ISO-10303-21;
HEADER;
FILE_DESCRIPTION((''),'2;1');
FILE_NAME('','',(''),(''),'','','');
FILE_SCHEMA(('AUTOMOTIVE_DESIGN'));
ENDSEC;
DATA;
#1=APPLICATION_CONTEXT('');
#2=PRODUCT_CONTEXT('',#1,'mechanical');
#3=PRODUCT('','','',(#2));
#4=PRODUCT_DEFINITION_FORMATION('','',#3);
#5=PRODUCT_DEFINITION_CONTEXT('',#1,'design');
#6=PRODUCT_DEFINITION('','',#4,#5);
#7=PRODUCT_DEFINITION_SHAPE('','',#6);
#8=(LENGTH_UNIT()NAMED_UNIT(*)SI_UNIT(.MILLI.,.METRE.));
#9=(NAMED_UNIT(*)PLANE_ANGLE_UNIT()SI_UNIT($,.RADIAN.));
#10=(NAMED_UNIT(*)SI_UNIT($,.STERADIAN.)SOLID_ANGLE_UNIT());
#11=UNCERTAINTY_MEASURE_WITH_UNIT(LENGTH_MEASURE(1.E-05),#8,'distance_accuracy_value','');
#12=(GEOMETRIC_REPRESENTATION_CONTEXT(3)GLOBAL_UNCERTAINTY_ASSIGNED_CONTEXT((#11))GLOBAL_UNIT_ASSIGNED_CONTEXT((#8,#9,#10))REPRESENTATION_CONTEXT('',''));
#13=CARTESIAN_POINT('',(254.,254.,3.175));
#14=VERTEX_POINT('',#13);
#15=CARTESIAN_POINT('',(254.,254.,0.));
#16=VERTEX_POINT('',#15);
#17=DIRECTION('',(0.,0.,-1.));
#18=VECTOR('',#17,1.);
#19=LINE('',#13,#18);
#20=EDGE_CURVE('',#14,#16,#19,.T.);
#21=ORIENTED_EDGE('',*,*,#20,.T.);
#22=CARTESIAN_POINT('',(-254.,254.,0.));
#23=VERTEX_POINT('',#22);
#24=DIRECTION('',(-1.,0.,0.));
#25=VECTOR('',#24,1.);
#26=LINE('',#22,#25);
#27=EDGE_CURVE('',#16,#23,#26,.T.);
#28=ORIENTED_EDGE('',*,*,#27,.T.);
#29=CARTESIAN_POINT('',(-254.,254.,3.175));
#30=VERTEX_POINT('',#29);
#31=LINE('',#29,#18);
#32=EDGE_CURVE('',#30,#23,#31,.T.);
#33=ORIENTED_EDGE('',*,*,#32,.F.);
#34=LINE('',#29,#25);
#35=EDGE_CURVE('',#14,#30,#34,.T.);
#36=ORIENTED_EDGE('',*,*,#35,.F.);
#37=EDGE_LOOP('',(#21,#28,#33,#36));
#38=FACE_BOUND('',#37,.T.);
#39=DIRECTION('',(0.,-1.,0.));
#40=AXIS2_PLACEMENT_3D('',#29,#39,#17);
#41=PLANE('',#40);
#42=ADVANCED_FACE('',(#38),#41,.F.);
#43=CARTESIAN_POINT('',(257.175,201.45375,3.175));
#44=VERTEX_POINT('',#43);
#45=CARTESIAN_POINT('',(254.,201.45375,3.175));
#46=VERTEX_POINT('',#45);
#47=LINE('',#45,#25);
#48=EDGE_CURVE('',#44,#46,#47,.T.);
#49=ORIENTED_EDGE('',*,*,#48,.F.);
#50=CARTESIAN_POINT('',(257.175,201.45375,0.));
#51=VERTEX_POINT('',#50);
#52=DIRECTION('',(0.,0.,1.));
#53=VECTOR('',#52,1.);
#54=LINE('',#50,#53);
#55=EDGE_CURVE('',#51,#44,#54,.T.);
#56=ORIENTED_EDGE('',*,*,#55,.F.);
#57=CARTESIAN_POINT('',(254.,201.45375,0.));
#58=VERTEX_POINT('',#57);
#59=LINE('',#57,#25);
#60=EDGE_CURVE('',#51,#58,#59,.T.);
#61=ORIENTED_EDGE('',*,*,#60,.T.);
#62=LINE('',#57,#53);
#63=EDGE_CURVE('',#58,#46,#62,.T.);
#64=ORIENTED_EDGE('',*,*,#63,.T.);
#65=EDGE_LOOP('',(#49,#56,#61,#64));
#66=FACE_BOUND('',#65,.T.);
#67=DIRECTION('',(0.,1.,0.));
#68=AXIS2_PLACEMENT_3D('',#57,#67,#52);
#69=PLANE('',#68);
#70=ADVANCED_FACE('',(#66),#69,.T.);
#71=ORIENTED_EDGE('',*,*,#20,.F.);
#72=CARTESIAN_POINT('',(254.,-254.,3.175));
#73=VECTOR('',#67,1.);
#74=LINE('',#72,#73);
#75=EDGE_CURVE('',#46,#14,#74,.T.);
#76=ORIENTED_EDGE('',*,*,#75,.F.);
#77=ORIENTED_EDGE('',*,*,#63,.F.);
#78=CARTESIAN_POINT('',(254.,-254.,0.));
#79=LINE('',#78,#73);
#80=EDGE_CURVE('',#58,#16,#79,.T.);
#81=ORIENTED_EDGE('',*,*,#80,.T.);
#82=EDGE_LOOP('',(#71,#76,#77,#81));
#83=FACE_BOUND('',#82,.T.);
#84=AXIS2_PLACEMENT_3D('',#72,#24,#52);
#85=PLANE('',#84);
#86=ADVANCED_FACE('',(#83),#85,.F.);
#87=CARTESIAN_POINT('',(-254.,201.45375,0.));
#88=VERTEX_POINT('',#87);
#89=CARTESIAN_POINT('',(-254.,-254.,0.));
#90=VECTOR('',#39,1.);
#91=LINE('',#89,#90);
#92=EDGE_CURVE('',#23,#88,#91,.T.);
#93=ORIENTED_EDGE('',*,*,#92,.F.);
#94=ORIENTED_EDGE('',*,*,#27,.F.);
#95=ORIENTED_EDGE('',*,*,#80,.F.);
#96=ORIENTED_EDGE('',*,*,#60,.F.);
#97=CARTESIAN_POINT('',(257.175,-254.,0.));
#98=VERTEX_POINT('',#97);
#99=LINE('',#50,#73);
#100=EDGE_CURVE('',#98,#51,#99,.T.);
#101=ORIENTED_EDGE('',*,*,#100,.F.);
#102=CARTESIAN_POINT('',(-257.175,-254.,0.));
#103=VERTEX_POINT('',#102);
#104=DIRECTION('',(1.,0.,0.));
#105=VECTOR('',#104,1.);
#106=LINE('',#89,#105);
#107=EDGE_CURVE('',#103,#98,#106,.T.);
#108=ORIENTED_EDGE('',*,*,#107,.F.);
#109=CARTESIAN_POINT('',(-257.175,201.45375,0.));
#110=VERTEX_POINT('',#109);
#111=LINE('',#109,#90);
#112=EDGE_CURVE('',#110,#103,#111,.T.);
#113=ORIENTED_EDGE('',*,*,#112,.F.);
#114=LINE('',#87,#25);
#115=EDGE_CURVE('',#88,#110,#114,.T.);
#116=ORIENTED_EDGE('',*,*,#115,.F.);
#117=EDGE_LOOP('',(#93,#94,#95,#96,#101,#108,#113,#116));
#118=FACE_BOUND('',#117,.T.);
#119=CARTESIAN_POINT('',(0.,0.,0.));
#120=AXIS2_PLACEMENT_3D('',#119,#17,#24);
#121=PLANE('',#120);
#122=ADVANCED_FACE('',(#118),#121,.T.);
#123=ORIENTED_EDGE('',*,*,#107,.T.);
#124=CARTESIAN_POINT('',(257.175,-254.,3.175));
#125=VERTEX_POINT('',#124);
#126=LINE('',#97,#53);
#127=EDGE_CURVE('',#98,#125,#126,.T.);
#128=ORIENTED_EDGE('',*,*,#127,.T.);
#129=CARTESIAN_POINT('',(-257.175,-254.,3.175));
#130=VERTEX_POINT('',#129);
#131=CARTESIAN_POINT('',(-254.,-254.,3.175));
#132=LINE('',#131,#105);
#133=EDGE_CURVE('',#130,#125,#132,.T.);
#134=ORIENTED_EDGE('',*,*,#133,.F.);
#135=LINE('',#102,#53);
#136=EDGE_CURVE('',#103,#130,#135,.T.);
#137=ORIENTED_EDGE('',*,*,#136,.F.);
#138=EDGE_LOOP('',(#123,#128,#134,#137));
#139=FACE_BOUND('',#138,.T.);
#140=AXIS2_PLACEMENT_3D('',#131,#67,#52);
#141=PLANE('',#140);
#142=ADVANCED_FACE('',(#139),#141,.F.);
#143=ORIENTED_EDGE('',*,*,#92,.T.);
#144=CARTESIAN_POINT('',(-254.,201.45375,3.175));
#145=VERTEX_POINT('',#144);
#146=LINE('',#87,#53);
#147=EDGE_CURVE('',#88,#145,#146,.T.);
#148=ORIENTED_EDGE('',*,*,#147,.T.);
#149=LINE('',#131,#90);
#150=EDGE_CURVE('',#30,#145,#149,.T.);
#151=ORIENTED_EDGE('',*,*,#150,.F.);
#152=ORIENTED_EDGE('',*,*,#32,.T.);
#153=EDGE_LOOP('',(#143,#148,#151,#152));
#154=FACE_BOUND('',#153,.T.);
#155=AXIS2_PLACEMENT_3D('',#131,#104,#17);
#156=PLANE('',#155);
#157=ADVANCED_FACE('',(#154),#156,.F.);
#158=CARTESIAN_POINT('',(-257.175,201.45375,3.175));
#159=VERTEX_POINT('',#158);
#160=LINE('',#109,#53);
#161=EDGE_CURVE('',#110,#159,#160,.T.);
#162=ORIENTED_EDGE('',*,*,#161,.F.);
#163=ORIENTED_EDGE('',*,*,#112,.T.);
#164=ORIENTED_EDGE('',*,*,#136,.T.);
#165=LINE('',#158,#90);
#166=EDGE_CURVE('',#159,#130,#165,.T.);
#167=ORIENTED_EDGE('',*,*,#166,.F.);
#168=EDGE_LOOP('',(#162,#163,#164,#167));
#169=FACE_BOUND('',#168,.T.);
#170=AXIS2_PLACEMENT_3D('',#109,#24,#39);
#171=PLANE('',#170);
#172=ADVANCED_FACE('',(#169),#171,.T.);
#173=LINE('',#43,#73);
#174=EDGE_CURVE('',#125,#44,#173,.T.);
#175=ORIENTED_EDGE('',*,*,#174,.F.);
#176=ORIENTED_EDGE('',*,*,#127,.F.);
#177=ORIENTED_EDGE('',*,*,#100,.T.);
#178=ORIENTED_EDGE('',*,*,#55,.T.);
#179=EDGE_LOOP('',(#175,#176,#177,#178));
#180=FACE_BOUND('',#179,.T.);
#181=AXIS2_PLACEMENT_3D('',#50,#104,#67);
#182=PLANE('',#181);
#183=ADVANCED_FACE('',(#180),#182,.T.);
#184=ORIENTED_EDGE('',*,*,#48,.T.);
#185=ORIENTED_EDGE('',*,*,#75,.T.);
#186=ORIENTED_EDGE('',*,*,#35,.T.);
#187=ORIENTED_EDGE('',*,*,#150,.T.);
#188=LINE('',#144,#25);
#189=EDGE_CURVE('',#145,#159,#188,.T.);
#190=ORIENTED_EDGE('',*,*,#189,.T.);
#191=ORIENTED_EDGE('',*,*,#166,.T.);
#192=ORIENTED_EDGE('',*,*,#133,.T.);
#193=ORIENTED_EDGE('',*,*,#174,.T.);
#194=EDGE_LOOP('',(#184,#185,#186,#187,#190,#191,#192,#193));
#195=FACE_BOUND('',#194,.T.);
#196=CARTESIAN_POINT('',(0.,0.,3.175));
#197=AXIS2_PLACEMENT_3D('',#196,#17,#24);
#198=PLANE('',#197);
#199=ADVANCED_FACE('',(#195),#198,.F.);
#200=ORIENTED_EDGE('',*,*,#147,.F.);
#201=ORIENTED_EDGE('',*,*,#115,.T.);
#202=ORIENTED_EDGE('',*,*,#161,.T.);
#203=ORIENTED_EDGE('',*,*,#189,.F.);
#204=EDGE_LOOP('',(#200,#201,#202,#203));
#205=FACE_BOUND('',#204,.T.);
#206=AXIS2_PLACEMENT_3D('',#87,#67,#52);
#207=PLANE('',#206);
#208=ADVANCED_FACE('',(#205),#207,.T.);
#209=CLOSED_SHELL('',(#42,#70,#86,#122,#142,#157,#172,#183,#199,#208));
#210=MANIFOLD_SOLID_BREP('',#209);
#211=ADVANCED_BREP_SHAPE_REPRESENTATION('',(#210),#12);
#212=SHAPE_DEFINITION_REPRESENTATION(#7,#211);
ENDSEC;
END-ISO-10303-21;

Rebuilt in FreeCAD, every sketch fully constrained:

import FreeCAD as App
import Part
import Sketcher

V = App.Vector
Q = App.Units.Quantity

doc = App.newDocument("Part")
body = doc.addObject("PartDesign::Body", "Body")

# Sketch on XY plane
sketch1 = body.newObject("Sketcher::SketchObject", "Sketch")
sketch1.AttachmentSupport = (doc.getObject("XY_Plane"), [""])
sketch1.MapMode = "FlatFace"
sketch1.addGeometry([
    Part.LineSegment(V(-254, 254, 0), V(-254, -254, 0)),
    Part.LineSegment(V(-254, -254, 0), V(254, -254, 0)),
    Part.LineSegment(V(254, -254, 0), V(254, 254, 0)),
    Part.LineSegment(V(254, 254, 0), V(-254, 254, 0)),
], False)
sketch1.addConstraint([
    Sketcher.Constraint("Coincident", 0, 2, 1, 1),
    Sketcher.Constraint("Coincident", 1, 2, 2, 1),
    Sketcher.Constraint("Coincident", 2, 2, 3, 1),
    Sketcher.Constraint("Coincident", 3, 2, 0, 1),
    Sketcher.Constraint("Vertical", 0),
    Sketcher.Constraint("Horizontal", 1),
    Sketcher.Constraint("Vertical", 2),
    Sketcher.Constraint("Horizontal", 3),
    Sketcher.Constraint("Symmetric", 0, 2, 2, 2, -1, 1),
    Sketcher.Constraint("Equal", 3, 0),
    Sketcher.Constraint("DistanceX", 1, 1, 1, 2, Q("20 in")),
])
pad1 = body.newObject("PartDesign::Pad", "Pad")
pad1.Profile = sketch1
pad1.Length = Q("0.125 in")

# Sketch on XY plane
sketch2 = body.newObject("Sketcher::SketchObject", "Sketch001")
sketch2.AttachmentSupport = (doc.getObject("XY_Plane"), [""])
sketch2.MapMode = "FlatFace"
sketch2.AttachmentOffset = App.Placement(V(0, 0, 0.125 * 25.4), App.Rotation())
sketch2.addGeometry([
    Part.LineSegment(V(254, 201.5, 0), V(254, -254, 0)),  # 0
    Part.LineSegment(V(254, -254, 0), V(257.2, -254, 0)),  # 1
    Part.LineSegment(V(257.2, -254, 0), V(257.2, 201.5, 0)),  # 2
    Part.LineSegment(V(257.2, 201.5, 0), V(254, 201.5, 0)),  # 3
    Part.LineSegment(V(-257.2, 201.5, 0), V(-257.2, -254, 0)),  # 4
    Part.LineSegment(V(-257.2, -254, 0), V(-254, -254, 0)),  # 5
    Part.LineSegment(V(-254, -254, 0), V(-254, 201.5, 0)),  # 6
    Part.LineSegment(V(-254, 201.5, 0), V(-257.2, 201.5, 0)),  # 7
], False)
sketch2.addConstraint([
    Sketcher.Constraint("Coincident", 0, 2, 1, 1),
    Sketcher.Constraint("Coincident", 1, 2, 2, 1),
    Sketcher.Constraint("Coincident", 2, 2, 3, 1),
    Sketcher.Constraint("Coincident", 3, 2, 0, 1),
    Sketcher.Constraint("Coincident", 4, 2, 5, 1),
    Sketcher.Constraint("Coincident", 5, 2, 6, 1),
    Sketcher.Constraint("Coincident", 6, 2, 7, 1),
    Sketcher.Constraint("Coincident", 7, 2, 4, 1),
    Sketcher.Constraint("Vertical", 0),
    Sketcher.Constraint("Horizontal", 1),
    Sketcher.Constraint("Vertical", 2),
    Sketcher.Constraint("Horizontal", 3),
    Sketcher.Constraint("Vertical", 4),
    Sketcher.Constraint("Horizontal", 5),
    Sketcher.Constraint("Vertical", 6),
    Sketcher.Constraint("Horizontal", 7),
    Sketcher.Constraint("Symmetric", 1, 2, 4, 2, -2),
    Sketcher.Constraint("Symmetric", 3, 2, 6, 2, -2),
    Sketcher.Constraint("DistanceX", -1, 1, 0, 2, Q("10 in")),
    Sketcher.Constraint("DistanceY", 0, 2, -1, 1, Q("10 in")),
    Sketcher.Constraint("DistanceX", 1, 1, 1, 2, Q("0.125 in")),
    Sketcher.Constraint("DistanceY", 0, 2, 0, 1, 455.45375),
])
pad2 = body.newObject("PartDesign::Pad", "Pad001")
pad2.Profile = sketch2
pad2.Length = Q("0.125 in")
pad2.Reversed = True

doc.recompute()
